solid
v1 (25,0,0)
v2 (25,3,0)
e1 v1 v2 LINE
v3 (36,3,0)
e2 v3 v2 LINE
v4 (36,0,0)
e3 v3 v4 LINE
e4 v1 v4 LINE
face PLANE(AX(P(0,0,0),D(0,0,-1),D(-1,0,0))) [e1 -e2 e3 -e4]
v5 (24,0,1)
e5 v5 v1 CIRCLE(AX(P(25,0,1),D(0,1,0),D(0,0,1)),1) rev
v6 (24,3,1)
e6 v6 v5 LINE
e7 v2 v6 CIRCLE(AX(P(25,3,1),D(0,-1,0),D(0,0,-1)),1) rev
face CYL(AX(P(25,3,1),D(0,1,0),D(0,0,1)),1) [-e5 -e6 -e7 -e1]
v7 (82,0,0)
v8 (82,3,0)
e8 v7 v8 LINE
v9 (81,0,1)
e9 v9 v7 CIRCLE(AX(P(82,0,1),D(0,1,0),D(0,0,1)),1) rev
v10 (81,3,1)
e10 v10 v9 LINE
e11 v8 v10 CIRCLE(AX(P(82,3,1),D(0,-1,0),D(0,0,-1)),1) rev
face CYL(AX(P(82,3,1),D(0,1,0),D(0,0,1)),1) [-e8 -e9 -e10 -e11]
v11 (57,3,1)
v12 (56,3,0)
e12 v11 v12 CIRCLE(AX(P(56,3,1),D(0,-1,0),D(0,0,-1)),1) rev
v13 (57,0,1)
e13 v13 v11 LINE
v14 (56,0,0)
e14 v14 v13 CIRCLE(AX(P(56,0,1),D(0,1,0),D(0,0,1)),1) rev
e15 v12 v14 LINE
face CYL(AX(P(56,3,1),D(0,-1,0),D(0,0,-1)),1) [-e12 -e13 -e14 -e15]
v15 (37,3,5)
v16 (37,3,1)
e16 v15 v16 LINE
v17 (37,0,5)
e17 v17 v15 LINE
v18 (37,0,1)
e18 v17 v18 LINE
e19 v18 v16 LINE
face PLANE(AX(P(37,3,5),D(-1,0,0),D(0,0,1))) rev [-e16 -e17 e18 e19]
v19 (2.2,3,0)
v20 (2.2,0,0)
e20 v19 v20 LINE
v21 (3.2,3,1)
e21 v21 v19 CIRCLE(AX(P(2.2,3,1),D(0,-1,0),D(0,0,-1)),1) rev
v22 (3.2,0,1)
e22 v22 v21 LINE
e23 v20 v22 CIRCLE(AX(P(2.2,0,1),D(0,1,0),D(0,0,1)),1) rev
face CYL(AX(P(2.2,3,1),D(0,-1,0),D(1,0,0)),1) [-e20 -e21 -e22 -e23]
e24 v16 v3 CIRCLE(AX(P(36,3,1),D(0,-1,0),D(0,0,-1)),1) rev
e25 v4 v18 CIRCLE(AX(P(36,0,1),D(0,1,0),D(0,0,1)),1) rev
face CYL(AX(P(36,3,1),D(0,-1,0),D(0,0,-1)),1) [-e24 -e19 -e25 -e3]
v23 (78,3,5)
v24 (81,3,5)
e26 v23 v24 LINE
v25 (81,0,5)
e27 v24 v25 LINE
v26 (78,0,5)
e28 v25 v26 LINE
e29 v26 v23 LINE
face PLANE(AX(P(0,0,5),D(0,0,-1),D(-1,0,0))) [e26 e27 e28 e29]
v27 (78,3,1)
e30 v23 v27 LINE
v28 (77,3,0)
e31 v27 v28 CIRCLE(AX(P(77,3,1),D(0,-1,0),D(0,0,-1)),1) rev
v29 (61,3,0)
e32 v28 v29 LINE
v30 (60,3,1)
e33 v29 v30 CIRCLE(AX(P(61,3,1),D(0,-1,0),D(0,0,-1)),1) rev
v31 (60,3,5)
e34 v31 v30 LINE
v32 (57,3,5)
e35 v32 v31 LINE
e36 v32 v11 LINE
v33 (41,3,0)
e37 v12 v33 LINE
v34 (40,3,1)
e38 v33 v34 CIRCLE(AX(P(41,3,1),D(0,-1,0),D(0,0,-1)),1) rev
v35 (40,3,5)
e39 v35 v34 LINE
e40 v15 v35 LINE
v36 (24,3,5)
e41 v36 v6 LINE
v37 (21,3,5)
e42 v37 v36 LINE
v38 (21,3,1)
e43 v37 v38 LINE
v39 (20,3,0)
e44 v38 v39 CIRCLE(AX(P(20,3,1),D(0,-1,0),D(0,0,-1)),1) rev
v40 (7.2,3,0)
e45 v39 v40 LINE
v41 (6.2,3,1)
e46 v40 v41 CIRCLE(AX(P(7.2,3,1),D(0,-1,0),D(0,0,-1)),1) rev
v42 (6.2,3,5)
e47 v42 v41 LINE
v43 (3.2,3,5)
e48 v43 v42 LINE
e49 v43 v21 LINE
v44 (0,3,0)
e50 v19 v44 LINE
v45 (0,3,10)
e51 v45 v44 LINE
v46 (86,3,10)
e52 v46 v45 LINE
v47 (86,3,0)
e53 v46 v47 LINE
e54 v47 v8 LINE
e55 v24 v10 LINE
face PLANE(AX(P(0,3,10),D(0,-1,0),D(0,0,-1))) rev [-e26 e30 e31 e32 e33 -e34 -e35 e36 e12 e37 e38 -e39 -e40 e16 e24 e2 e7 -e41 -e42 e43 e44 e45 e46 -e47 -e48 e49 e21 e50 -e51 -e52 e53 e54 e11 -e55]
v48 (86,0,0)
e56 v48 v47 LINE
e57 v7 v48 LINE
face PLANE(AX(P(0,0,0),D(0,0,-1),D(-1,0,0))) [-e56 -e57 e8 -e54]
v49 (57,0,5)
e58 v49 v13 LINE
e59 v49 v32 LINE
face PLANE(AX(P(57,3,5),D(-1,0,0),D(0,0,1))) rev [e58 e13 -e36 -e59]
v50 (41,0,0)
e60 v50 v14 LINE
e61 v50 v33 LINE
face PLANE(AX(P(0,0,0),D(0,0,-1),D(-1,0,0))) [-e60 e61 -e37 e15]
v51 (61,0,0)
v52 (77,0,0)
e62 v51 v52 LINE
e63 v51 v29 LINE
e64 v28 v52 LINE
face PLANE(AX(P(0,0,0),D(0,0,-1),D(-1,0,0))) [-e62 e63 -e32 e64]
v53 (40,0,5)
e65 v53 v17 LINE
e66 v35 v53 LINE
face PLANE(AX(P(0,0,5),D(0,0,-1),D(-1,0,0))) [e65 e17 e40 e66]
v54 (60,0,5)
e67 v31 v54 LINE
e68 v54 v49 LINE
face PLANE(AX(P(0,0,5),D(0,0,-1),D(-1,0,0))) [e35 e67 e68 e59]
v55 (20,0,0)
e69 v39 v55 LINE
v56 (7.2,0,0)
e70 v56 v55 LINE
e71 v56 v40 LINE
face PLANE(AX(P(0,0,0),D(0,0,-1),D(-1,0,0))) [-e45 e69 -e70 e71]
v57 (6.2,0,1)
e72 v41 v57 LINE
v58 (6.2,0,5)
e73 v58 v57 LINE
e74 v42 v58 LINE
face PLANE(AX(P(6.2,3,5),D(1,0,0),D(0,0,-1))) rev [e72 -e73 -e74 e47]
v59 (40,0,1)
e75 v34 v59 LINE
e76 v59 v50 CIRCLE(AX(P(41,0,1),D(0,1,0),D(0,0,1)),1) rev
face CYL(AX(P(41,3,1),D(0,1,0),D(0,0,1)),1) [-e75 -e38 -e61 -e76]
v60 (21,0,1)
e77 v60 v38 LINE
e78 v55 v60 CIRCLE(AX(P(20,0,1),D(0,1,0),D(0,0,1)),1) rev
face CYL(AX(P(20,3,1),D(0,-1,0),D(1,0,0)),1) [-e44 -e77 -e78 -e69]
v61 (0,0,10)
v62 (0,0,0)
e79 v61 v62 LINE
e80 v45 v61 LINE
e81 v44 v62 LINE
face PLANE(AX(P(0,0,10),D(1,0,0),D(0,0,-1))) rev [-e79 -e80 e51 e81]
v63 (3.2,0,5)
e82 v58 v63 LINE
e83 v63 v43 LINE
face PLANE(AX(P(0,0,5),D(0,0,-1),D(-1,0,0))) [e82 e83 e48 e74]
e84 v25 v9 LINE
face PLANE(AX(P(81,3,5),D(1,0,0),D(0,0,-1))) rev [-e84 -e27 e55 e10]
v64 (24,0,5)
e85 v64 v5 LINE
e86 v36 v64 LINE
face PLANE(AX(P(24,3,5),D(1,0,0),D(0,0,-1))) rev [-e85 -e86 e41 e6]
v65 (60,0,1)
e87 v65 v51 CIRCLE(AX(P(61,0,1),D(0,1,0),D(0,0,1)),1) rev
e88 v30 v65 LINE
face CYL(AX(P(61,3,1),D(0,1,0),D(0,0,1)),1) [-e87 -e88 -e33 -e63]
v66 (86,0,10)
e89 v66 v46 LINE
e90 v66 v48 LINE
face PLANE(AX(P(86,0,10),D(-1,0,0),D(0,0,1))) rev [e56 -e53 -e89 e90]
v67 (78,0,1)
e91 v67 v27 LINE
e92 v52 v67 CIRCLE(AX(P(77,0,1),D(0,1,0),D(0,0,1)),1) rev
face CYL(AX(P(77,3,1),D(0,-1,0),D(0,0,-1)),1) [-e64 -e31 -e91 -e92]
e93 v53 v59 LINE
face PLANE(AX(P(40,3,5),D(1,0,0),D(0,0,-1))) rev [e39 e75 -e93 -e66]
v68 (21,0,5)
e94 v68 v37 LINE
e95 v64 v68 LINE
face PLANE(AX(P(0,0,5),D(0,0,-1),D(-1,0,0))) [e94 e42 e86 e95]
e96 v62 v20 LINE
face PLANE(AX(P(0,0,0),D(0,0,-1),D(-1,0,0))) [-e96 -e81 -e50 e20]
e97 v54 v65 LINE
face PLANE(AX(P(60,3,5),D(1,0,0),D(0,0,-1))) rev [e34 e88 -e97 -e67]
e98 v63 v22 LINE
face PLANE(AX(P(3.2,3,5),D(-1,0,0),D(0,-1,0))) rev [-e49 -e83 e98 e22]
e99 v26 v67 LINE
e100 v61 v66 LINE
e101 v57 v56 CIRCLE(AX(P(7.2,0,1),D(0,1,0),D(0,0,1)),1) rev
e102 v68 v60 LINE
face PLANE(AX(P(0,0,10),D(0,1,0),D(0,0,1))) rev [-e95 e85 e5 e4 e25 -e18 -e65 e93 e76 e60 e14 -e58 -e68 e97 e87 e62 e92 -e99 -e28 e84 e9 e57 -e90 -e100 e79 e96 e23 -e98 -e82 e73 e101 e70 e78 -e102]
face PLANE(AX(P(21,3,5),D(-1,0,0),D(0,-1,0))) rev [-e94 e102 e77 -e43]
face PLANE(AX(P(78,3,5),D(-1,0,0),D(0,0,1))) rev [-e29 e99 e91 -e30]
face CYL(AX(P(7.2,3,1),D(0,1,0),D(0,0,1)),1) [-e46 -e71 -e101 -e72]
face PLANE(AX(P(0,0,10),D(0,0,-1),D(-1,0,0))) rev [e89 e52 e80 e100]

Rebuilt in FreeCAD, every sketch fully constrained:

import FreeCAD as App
import Part
import Sketcher
Q = App.Units.Quantity


def edges_at(feature, points):
    """Names of the edges that pass closest to the given points."""
    edges = feature.Shape.Edges
    near = lambda p: min(range(len(edges)), key=lambda i: edges[i].distToShape(Part.Vertex(*p))[0])
    return sorted({f"Edge{near(p) + 1}" for p in points})


def add_polygon(sketch, points):
    """Adds a closed chain of lines whose ends are joined by coincident constraints."""
    first, n = sketch.GeometryCount, len(points)
    for a, b in zip(points, points[1:] + points[:1]):
        sketch.addGeometry(Part.LineSegment(App.Vector(*a, 0), App.Vector(*b, 0)), False)
    for i in range(n):
        sketch.addConstraint(Sketcher.Constraint("Coincident", first + i, 2, first + (i + 1) % n, 1))

doc = App.newDocument("Part")
body = doc.addObject("PartDesign::Body", "Body")

sketch1 = body.newObject("Sketcher::SketchObject", "Sketch")
sketch1.AttachmentSupport = (doc.getObject("XY_Plane"), [""])
sketch1.MapMode = "FlatFace"
add_polygon(sketch1, [(0, 3), (0, 0), (86, 0), (86, 3)])
sketch1.addConstraint(Sketcher.Constraint("Vertical", 0))
sketch1.addConstraint(Sketcher.Constraint("Horizontal", 1))
sketch1.addConstraint(Sketcher.Constraint("Vertical", 2))
sketch1.addConstraint(Sketcher.Constraint("Horizontal", 3))
sketch1.addConstraint(Sketcher.Constraint("Coincident", 0, 2, -1, 1))
sketch1.addConstraint(Sketcher.Constraint("DistanceX", 1, 1, 1, 2, Q("86 mm")))
sketch1.addConstraint(Sketcher.Constraint("DistanceY", 0, 2, 0, 1, Q("3 mm")))
pad1 = body.newObject("PartDesign::Pad", "Pad")
pad1.Profile = sketch1
pad1.Length = 10

sketch2 = body.newObject("Sketcher::SketchObject", "Sketch001")
sketch2.AttachmentSupport = (doc.getObject("XY_Plane"), [""])
sketch2.MapMode = "FlatFace"
add_polygon(sketch2, [(81, 3), (81, 0), (78, 0), (78, 3)])
add_polygon(sketch2, [(60, 3), (60, 0), (57, 0), (57, 3)])
add_polygon(sketch2, [(40, 3), (40, 0), (37, 0), (37, 3)])
add_polygon(sketch2, [(24, 3), (24, 0), (21, 0), (21, 3)])
add_polygon(sketch2, [(6.2, 3), (6.2, 0), (3.2, 0), (3.2, 3)])
sketch2.addConstraint(Sketcher.Constraint("Vertical", 0))
sketch2.addConstraint(Sketcher.Constraint("Horizontal", 1))
sketch2.addConstraint(Sketcher.Constraint("Vertical", 2))
sketch2.addConstraint(Sketcher.Constraint("Horizontal", 3))
sketch2.addConstraint(Sketcher.Constraint("Vertical", 4))
sketch2.addConstraint(Sketcher.Constraint("Horizontal", 5))
sketch2.addConstraint(Sketcher.Constraint("Vertical", 6))
sketch2.addConstraint(Sketcher.Constraint("Horizontal", 7))
sketch2.addConstraint(Sketcher.Constraint("Vertical", 8))
sketch2.addConstraint(Sketcher.Constraint("Horizontal", 9))
sketch2.addConstraint(Sketcher.Constraint("Vertical", 10))
sketch2.addConstraint(Sketcher.Constraint("Horizontal", 11))
sketch2.addConstraint(Sketcher.Constraint("Vertical", 12))
sketch2.addConstraint(Sketcher.Constraint("Horizontal", 13))
sketch2.addConstraint(Sketcher.Constraint("Vertical", 14))
sketch2.addConstraint(Sketcher.Constraint("Horizontal", 15))
sketch2.addConstraint(Sketcher.Constraint("Vertical", 16))
sketch2.addConstraint(Sketcher.Constraint("Horizontal", 17))
sketch2.addConstraint(Sketcher.Constraint("Vertical", 18))
sketch2.addConstraint(Sketcher.Constraint("Horizontal", 19))
sketch2.addConstraint(Sketcher.Constraint("PointOnObject", 0, 2, -1))
sketch2.addConstraint(Sketcher.Constraint("PointOnObject", 4, 2, -1))
sketch2.addConstraint(Sketcher.Constraint("PointOnObject", 8, 2, -1))
sketch2.addConstraint(Sketcher.Constraint("PointOnObject", 12, 2, -1))
sketch2.addConstraint(Sketcher.Constraint("PointOnObject", 16, 2, -1))
sketch2.addConstraint(Sketcher.Constraint("Horizontal", 3, 2, 6, 2))
sketch2.addConstraint(Sketcher.Constraint("Horizontal", 7, 2, 10, 2))
sketch2.addConstraint(Sketcher.Constraint("Horizontal", 11, 2, 14, 2))
sketch2.addConstraint(Sketcher.Constraint("Horizontal", 15, 2, 18, 2))
sketch2.addConstraint(Sketcher.Constraint("Equal", 3, 5))
sketch2.addConstraint(Sketcher.Constraint("Equal", 7, 9))
sketch2.addConstraint(Sketcher.Constraint("Equal", 11, 13))
sketch2.addConstraint(Sketcher.Constraint("Equal", 15, 17))
sketch2.addConstraint(Sketcher.Constraint("Equal", 19, 0))
sketch2.addConstraint(Sketcher.Constraint("DistanceX", 1, 2, 1, 1, Q("3 mm")))
sketch2.addConstraint(Sketcher.Constraint("DistanceX", -1, 1, 0, 2, Q("81 mm")))
sketch2.addConstraint(Sketcher.Constraint("DistanceX", -1, 1, 4, 2, Q("60 mm")))
sketch2.addConstraint(Sketcher.Constraint("DistanceX", -1, 1, 8, 2, Q("40 mm")))
sketch2.addConstraint(Sketcher.Constraint("DistanceX", -1, 1, 12, 2, Q("24 mm")))
sketch2.addConstraint(Sketcher.Constraint("DistanceX", -1, 1, 16, 2, Q("6.2 mm")))
pocket1 = body.newObject("PartDesign::Pocket", "Pocket")
pocket1.Profile = sketch2
pocket1.Length = 5
pocket1.Reversed = True
doc.recompute()

fillet = body.newObject("PartDesign::Fillet", "Fillet")
fillet.Base = (pocket1, edges_at(pocket1, [
    (78, 1.5, 0),
    (81, 1.5, 0),
    (57, 1.5, 0),
    (60, 1.5, 0),
    (37, 1.5, 0),
    (40, 1.5, 0),
    (21, 1.5, 0),
    (24, 1.5, 0),
    (3.2, 1.5, 0),
    (6.2, 1.5, 0),
]))
fillet.Radius = 1

doc.recompute()
